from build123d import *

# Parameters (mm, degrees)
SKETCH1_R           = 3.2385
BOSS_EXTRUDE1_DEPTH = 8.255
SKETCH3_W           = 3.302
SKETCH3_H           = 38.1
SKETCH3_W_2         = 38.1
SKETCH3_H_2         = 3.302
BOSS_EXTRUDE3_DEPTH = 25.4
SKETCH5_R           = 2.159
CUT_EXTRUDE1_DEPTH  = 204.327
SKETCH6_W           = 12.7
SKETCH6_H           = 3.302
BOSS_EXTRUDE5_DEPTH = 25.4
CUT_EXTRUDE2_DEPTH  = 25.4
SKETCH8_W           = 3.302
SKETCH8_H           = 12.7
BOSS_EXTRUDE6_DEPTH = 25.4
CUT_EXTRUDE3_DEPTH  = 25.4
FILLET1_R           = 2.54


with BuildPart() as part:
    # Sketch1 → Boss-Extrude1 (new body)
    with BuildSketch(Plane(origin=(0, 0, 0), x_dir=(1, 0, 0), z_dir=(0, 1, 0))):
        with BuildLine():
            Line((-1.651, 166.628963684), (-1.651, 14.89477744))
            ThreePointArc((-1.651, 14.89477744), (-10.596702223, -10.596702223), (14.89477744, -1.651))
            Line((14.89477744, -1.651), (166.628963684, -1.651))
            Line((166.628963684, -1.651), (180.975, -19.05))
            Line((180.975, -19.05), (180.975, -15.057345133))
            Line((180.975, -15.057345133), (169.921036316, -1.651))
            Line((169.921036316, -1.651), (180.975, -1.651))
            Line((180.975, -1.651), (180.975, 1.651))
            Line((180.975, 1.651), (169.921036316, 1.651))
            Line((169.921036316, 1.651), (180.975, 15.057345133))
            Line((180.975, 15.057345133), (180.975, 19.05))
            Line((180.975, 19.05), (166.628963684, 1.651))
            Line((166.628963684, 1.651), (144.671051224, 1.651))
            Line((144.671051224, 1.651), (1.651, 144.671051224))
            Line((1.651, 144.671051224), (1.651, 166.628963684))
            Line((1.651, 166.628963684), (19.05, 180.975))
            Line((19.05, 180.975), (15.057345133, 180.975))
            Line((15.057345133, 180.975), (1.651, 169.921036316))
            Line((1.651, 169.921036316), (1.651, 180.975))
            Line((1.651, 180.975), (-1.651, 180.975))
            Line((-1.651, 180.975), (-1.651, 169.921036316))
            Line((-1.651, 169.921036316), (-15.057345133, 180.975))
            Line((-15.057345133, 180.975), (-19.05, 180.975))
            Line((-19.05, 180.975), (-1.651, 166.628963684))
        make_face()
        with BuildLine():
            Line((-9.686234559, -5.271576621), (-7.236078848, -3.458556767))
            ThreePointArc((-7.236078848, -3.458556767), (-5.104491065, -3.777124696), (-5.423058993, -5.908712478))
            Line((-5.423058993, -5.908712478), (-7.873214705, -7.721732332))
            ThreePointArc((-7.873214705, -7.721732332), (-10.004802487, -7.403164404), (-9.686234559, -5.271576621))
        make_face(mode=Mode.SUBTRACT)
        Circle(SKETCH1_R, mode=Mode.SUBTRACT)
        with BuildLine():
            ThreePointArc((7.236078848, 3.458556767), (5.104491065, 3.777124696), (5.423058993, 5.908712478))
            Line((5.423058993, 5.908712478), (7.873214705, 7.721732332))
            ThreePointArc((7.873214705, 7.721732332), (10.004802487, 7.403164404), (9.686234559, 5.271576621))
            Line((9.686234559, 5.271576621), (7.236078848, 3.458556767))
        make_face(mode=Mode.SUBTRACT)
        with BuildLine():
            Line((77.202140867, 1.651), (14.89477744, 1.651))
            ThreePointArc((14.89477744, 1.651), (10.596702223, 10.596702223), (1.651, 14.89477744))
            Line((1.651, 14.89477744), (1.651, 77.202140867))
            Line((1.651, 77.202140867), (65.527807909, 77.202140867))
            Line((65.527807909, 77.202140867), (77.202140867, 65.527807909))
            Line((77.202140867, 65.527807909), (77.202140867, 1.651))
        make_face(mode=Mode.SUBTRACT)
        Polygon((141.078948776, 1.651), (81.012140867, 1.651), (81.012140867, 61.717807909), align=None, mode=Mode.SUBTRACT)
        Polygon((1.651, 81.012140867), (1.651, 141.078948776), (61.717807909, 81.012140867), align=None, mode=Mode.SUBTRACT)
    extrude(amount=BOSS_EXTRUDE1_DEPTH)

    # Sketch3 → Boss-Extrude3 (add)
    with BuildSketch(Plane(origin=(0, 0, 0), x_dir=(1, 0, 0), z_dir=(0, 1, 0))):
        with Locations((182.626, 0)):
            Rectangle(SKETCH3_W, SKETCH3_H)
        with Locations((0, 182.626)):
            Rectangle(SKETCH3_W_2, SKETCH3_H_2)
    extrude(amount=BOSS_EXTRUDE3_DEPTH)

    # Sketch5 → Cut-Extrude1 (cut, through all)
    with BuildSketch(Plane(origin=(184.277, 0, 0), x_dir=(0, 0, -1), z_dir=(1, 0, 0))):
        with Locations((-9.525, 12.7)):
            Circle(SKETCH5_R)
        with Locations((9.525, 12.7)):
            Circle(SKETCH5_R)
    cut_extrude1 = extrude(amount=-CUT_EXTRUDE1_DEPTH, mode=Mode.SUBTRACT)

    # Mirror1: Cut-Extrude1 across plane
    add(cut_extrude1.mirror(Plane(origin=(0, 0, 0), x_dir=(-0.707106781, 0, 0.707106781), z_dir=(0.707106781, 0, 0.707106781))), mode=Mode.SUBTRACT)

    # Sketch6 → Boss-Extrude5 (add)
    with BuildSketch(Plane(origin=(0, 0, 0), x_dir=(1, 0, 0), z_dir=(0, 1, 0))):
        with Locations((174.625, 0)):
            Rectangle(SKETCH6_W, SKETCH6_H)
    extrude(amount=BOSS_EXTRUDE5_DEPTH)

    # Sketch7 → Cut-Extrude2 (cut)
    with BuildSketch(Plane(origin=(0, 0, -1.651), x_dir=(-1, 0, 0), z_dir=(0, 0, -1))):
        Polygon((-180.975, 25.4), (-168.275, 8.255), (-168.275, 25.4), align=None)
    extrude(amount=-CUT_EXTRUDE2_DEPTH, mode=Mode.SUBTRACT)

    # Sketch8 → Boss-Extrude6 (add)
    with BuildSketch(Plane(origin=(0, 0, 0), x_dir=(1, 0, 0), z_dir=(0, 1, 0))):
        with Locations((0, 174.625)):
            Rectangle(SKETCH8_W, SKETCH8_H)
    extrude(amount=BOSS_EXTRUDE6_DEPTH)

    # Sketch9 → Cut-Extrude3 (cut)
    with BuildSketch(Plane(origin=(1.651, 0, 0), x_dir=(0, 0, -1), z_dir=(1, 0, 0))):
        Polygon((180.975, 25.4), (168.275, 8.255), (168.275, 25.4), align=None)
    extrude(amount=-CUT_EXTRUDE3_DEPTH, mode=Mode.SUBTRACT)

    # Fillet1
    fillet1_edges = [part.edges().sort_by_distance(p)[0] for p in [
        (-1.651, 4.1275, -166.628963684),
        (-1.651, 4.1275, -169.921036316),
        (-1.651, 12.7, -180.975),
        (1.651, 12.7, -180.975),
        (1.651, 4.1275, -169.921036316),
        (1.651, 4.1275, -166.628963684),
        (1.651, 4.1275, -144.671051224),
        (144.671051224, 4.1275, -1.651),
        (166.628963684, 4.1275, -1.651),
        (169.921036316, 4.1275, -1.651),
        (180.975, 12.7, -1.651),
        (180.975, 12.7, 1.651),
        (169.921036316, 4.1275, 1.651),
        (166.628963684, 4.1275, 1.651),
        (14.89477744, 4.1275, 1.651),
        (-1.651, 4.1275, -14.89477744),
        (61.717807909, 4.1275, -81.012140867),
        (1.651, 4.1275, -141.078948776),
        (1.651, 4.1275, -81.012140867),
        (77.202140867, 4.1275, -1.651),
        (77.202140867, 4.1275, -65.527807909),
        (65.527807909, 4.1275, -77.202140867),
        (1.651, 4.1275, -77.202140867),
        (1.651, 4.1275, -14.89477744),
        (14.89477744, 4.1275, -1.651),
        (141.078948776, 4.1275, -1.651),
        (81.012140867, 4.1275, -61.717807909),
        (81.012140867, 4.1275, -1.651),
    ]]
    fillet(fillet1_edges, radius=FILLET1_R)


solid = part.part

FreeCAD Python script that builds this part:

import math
import FreeCAD as App
import Part
import Sketcher

V = App.Vector
Q = App.Units.Quantity


def edges_at(feature, points):
    """Names of the edges that pass closest to the given points."""
    edges = feature.Shape.Edges
    near = lambda p: min(range(len(edges)), key=lambda i: edges[i].distToShape(Part.Vertex(*p))[0])
    return sorted({f"Edge{near(p) + 1}" for p in points})

doc = App.newDocument("Part")
body = doc.addObject("PartDesign::Body", "Body")

# Sketch on XZ plane
sketch1 = body.newObject("Sketcher::SketchObject", "Sketch")
sketch1.AttachmentSupport = (doc.getObject("XZ_Plane"), [""])
sketch1.MapMode = "FlatFace"
sketch1.addGeometry(Part.LineSegment(V(-1.7, -166.6, 0), V(-1.7, -14.9, 0)), False)
sketch1.addGeometry(Part.ArcOfCircle(Part.Circle(V(0, 0, 0), V(0, 0, 1), 15), math.radians(6), math.radians(264)), False)
sketch1.addGeometry(Part.LineSegment(V(14.9, 1.7, 0), V(166.6, 1.7, 0)), False)
sketch1.addGeometry(Part.LineSegment(V(166.6, 1.7, 0), V(181, 19.1, 0)), False)
sketch1.addGeometry(Part.LineSegment(V(181, 19.1, 0), V(181, 15.1, 0)), False)
sketch1.addGeometry(Part.LineSegment(V(181, 15.1, 0), V(169.9, 1.7, 0)), False)
sketch1.addGeometry(Part.LineSegment(V(169.9, 1.7, 0), V(181, 1.7, 0)), False)
sketch1.addGeometry(Part.LineSegment(V(181, 1.7, 0), V(181, -1.7, 0)), False)
sketch1.addGeometry(Part.LineSegment(V(181, -1.7, 0), V(169.9, -1.7, 0)), False)
sketch1.addGeometry(Part.LineSegment(V(169.9, -1.7, 0), V(181, -15.1, 0)), False)
sketch1.addGeometry(Part.LineSegment(V(181, -15.1, 0), V(181, -19.1, 0)), False)
sketch1.addGeometry(Part.LineSegment(V(181, -19.1, 0), V(166.6, -1.7, 0)), False)
sketch1.addGeometry(Part.LineSegment(V(166.6, -1.7, 0), V(144.7, -1.7, 0)), False)
sketch1.addGeometry(Part.LineSegment(V(144.7, -1.7, 0), V(1.7, -144.7, 0)), False)
sketch1.addGeometry(Part.LineSegment(V(1.7, -144.7, 0), V(1.7, -166.6, 0)), False)
sketch1.addGeometry(Part.LineSegment(V(1.7, -166.6, 0), V(19.1, -181, 0)), False)
sketch1.addGeometry(Part.LineSegment(V(19.1, -181, 0), V(15.1, -181, 0)), False)
sketch1.addGeometry(Part.LineSegment(V(15.1, -181, 0), V(1.7, -169.9, 0)), False)
sketch1.addGeometry(Part.LineSegment(V(1.7, -169.9, 0), V(1.7, -181, 0)), False)
sketch1.addGeometry(Part.LineSegment(V(1.7, -181, 0), V(-1.7, -181, 0)), False)
sketch1.addGeometry(Part.LineSegment(V(-1.7, -181, 0), V(-1.7, -169.9, 0)), False)
sketch1.addGeometry(Part.LineSegment(V(-1.7, -169.9, 0), V(-15.1, -181, 0)), False)
sketch1.addGeometry(Part.LineSegment(V(-15.1, -181, 0), V(-19.1, -181, 0)), False)
sketch1.addGeometry(Part.LineSegment(V(-19.1, -181, 0), V(-1.7, -166.6, 0)), False)
sketch1.addGeometry(Part.ArcOfCircle(Part.Circle(V(-8.8, 6.5, 0), V(0, 0, 1), 1.5), math.radians(54), math.radians(233)), False)
sketch1.addGeometry(Part.LineSegment(V(-9.7, 5.3, 0), V(-7.2, 3.5, 0)), False)
sketch1.addGeometry(Part.ArcOfCircle(Part.Circle(V(-6.3, 4.7, 0), V(0, 0, 1), 1.5), math.radians(-126), math.radians(53)), False)
sketch1.addGeometry(Part.LineSegment(V(-5.4, 5.9, 0), V(-7.9, 7.7, 0)), False)
sketch1.addGeometry(Part.Circle(V(0, 0, 0), V(0, 0, 1), 3.2), False)
sketch1.addGeometry(Part.LineSegment(V(9.7, -5.3, 0), V(7.2, -3.5, 0)), False)
sketch1.addGeometry(Part.ArcOfCircle(Part.Circle(V(6.3, -4.7, 0), V(0, 0, 1), 1.5), math.radians(54), math.radians(233)), False)
sketch1.addGeometry(Part.LineSegment(V(5.4, -5.9, 0), V(7.9, -7.7, 0)), False)
sketch1.addGeometry(Part.ArcOfCircle(Part.Circle(V(8.8, -6.5, 0), V(0, 0, 1), 1.5), math.radians(-126), math.radians(53)), False)
sketch1.addGeometry(Part.LineSegment(V(77.2, -65.5, 0), V(77.2, -1.7, 0)), False)
sketch1.addGeometry(Part.LineSegment(V(77.2, -1.7, 0), V(14.9, -1.7, 0)), False)
sketch1.addGeometry(Part.ArcOfCircle(Part.Circle(V(0, 0, 0), V(0, 0, 1), 15), math.radians(-84), math.radians(-6)), False)
sketch1.addGeometry(Part.LineSegment(V(1.7, -14.9, 0), V(1.7, -77.2, 0)), False)
sketch1.addGeometry(Part.LineSegment(V(1.7, -77.2, 0), V(65.5, -77.2, 0)), False)
sketch1.addGeometry(Part.LineSegment(V(65.5, -77.2, 0), V(77.2, -65.5, 0)), False)
sketch1.addGeometry(Part.LineSegment(V(81, -61.7, 0), V(141.1, -1.7, 0)), False)
sketch1.addGeometry(Part.LineSegment(V(141.1, -1.7, 0), V(81, -1.7, 0)), False)
sketch1.addGeometry(Part.LineSegment(V(81, -1.7, 0), V(81, -61.7, 0)), False)
sketch1.addGeometry(Part.LineSegment(V(61.7, -81, 0), V(1.7, -81, 0)), False)
sketch1.addGeometry(Part.LineSegment(V(1.7, -81, 0), V(1.7, -141.1, 0)), False)
sketch1.addGeometry(Part.LineSegment(V(1.7, -141.1, 0), V(61.7, -81, 0)), False)
sketch1.addConstraint(Sketcher.Constraint("Coincident", 0, 2, 1, 2))
sketch1.addConstraint(Sketcher.Constraint("Coincident", 1, 1, 2, 1))
sketch1.addConstraint(Sketcher.Constraint("Coincident", 2, 2, 3, 1))
sketch1.addConstraint(Sketcher.Constraint("Coincident", 3, 2, 4, 1))
sketch1.addConstraint(Sketcher.Constraint("Coincident", 4, 2, 5, 1))
sketch1.addConstraint(Sketcher.Constraint("Coincident", 5, 2, 6, 1))
sketch1.addConstraint(Sketcher.Constraint("Coincident", 6, 2, 7, 1))
sketch1.addConstraint(Sketcher.Constraint("Coincident", 7, 2, 8, 1))
sketch1.addConstraint(Sketcher.Constraint("Coincident", 8, 2, 9, 1))
sketch1.addConstraint(Sketcher.Constraint("Coincident", 9, 2, 10, 1))
sketch1.addConstraint(Sketcher.Constraint("Coincident", 10, 2, 11, 1))
sketch1.addConstraint(Sketcher.Constraint("Coincident", 11, 2, 12, 1))
sketch1.addConstraint(Sketcher.Constraint("Coincident", 12, 2, 13, 1))
sketch1.addConstraint(Sketcher.Constraint("Coincident", 13, 2, 14, 1))
sketch1.addConstraint(Sketcher.Constraint("Coincident", 14, 2, 15, 1))
sketch1.addConstraint(Sketcher.Constraint("Coincident", 15, 2, 16, 1))
sketch1.addConstraint(Sketcher.Constraint("Coincident", 16, 2, 17, 1))
sketch1.addConstraint(Sketcher.Constraint("Coincident", 17, 2, 18, 1))
sketch1.addConstraint(Sketcher.Constraint("Coincident", 18, 2, 19, 1))
sketch1.addConstraint(Sketcher.Constraint("Coincident", 19, 2, 20, 1))
sketch1.addConstraint(Sketcher.Constraint("Coincident", 20, 2, 21, 1))
sketch1.addConstraint(Sketcher.Constraint("Coincident", 21, 2, 22, 1))
sketch1.addConstraint(Sketcher.Constraint("Coincident", 22, 2, 23, 1))
sketch1.addConstraint(Sketcher.Constraint("Coincident", 23, 2, 0, 1))
sketch1.addConstraint(Sketcher.Constraint("Tangent", 24, 2, 25, 1))
sketch1.addConstraint(Sketcher.Constraint("Tangent", 25, 2, 26, 1))
sketch1.addConstraint(Sketcher.Constraint("Tangent", 26, 2, 27, 1))
sketch1.addConstraint(Sketcher.Constraint("Tangent", 27, 2, 24, 1))
sketch1.addConstraint(Sketcher.Constraint("Tangent", 29, 2, 30, 1))
sketch1.addConstraint(Sketcher.Constraint("Tangent", 30, 2, 31, 1))
sketch1.addConstraint(Sketcher.Constraint("Tangent", 31, 2, 32, 1))
sketch1.addConstraint(Sketcher.Constraint("Tangent", 32, 2, 29, 1))
sketch1.addConstraint(Sketcher.Constraint("Coincident", 33, 2, 34, 1))
sketch1.addConstraint(Sketcher.Constraint("Coincident", 34, 2, 35, 2))
sketch1.addConstraint(Sketcher.Constraint("Coincident", 35, 1, 36, 1))
sketch1.addConstraint(Sketcher.Constraint("Coincident", 36, 2, 37, 1))
sketch1.addConstraint(Sketcher.Constraint("Coincident", 37, 2, 38, 1))
sketch1.addConstraint(Sketcher.Constraint("Coincident", 38, 2, 33, 1))
sketch1.addConstraint(Sketcher.Constraint("Coincident", 39, 2, 40, 1))
sketch1.addConstraint(Sketcher.Constraint("Coincident", 40, 2, 41, 1))
sketch1.addConstraint(Sketcher.Constraint("Coincident", 41, 2, 39, 1))
sketch1.addConstraint(Sketcher.Constraint("Coincident", 42, 2, 43, 1))
sketch1.addConstraint(Sketcher.Constraint("Coincident", 43, 2, 44, 1))
sketch1.addConstraint(Sketcher.Constraint("Coincident", 44, 2, 42, 1))
sketch1.addConstraint(Sketcher.Constraint("Vertical", 0))
sketch1.addConstraint(Sketcher.Constraint("Horizontal", 2))
sketch1.addConstraint(Sketcher.Constraint("Vertical", 4))
sketch1.addConstraint(Sketcher.Constraint("Horizontal", 6))
sketch1.addConstraint(Sketcher.Constraint("Vertical", 7))
sketch1.addConstraint(Sketcher.Constraint("Horizontal", 8))
sketch1.addConstraint(Sketcher.Constraint("Vertical", 10))
sketch1.addConstraint(Sketcher.Constraint("Horizontal", 12))
sketch1.addConstraint(Sketcher.Constraint("Vertical", 14))
sketch1.addConstraint(Sketcher.Constraint("Horizontal", 16))
sketch1.addConstraint(Sketcher.Constraint("Vertical", 18))
sketch1.addConstraint(Sketcher.Constraint("Horizontal", 19))
sketch1.addConstraint(Sketcher.Constraint("Vertical", 20))
sketch1.addConstraint(Sketcher.Constraint("Horizontal", 22))
sketch1.addConstraint(Sketcher.Constraint("Vertical", 33))
sketch1.addConstraint(Sketcher.Constraint("Horizontal", 34))
sketch1.addConstraint(Sketcher.Constraint("Vertical", 36))
sketch1.addConstraint(Sketcher.Constraint("Horizontal", 37))
sketch1.addConstraint(Sketcher.Constraint("Horizontal", 40))
sketch1.addConstraint(Sketcher.Constraint("Vertical", 41))
sketch1.addConstraint(Sketcher.Constraint("Horizontal", 42))
sketch1.addConstraint(Sketcher.Constraint("Vertical", 43))
sketch1.addConstraint(Sketcher.Constraint("Coincident", 1, 3, -1, 1))
sketch1.addConstraint(Sketcher.Constraint("Coincident", 28, 3, -1, 1))
sketch1.addConstraint(Sketcher.Constraint("Coincident", 35, 3, -1, 1))
sketch1.addConstraint(Sketcher.Constraint("Equal", 24, 26))
sketch1.addConstraint(Sketcher.Constraint("Equal", 26, 30))
sketch1.addConstraint(Sketcher.Constraint("Equal", 30, 32))
sketch1.addConstraint(Sketcher.Constraint("Equal", 1, 35))
sketch1.addConstraint(Sketcher.Constraint("Symmetric", 26, 3, 30, 3, -1, 1))
sketch1.addConstraint(Sketcher.Constraint("Symmetric", 24, 3, 32, 3, -1, 1))
sketch1.addConstraint(Sketcher.Constraint("Symmetric", 17, 2, 20, 2, -2))
sketch1.addConstraint(Sketcher.Constraint("Symmetric", 16, 2, 21, 2, -2))
sketch1.addConstraint(Sketcher.Constraint("Symmetric", 14, 2, 23, 2, -2))
sketch1.addConstraint(Sketcher.Constraint("Symmetric", 5, 2, 8, 2, -1))
sketch1.addConstraint(Sketcher.Constraint("Symmetric", 4, 2, 9, 2, -1))
sketch1.addConstraint(Sketcher.Constraint("Symmetric", 2, 2, 11, 2, -1))
sketch1.addConstraint(Sketcher.Constraint("Parallel", 3, 5))
sketch1.addConstraint(Sketcher.Constraint("Parallel", 9, 11))
sketch1.addConstraint(Sketcher.Constraint("Perpendicular", 5, 15))
sketch1.addConstraint(Sketcher.Constraint("Parallel", 15, 17))
sketch1.addConstraint(Sketcher.Constraint("Parallel", 21, 23))
sketch1.addConstraint(Sketcher.Constraint("Parallel", 13, 38))
sketch1.addConstraint(Sketcher.Constraint("Parallel", 38, 39))
sketch1.addConstraint(Sketcher.Constraint("Parallel", 39, 44))
sketch1.addConstraint(Sketcher.Constraint("Horizontal", 2, 2, 5, 2))
sketch1.addConstraint(Sketcher.Constraint("Horizontal", 16, 2, 18, 2))
sketch1.addConstraint(Sketcher.Constraint("Horizontal", 12, 2, 33, 2))
sketch1.addConstraint(Sketcher.Constraint("Horizontal", 0, 2, 35, 1))
sketch1.addConstraint(Sketcher.Constraint("Horizontal", 34, 2, 39, 2))
sketch1.addConstraint(Sketcher.Constraint("Vertical", 4, 2, 6, 2))
sketch1.addConstraint(Sketcher.Constraint("Vertical", 14, 2, 17, 2))
sketch1.addConstraint(Sketcher.Constraint("Vertical", 36, 2, 42, 2))
sketch1.addConstraint(Sketcher.Constraint("Equal", 40, 42))
sketch1.addConstraint(Sketcher.Constraint("Equal", 2, 0))
sketch1.addConstraint(Sketcher.Constraint("Equal", 22, 4))
sketch1.addConstraint(Sketcher.Constraint("Equal", 19, 7))
sketch1.addConstraint(Sketcher.Constraint("Equal", 12, 14))
sketch1.addConstraint(Sketcher.Constraint("Equal", 8, 18))
sketch1.addConstraint(Sketcher.Constraint("Equal", 37, 33))
sketch1.addConstraint(Sketcher.Constraint("Radius", 1, Q("0.59 in")))
sketch1.addConstraint(Sketcher.Constraint("Radius", 24, Q("0.06 in")))
sketch1.addConstraint(Sketcher.Constraint("Diameter", 28, Q("0.255 in")))
sketch1.addConstraint(Sketcher.Constraint("DistanceX", 19, 2, 19, 1, Q("0.13 in")))
sketch1.addConstraint(Sketcher.Constraint("Angle", 25, Q("-36.5 deg")))
sketch1.addConstraint(Sketcher.Constraint("Distance", 25, Q("0.12 in")))
sketch1.addConstraint(Sketcher.Constraint("Distance", 38, Q("0.65 in")))
sketch1.addConstraint(Sketcher.Constraint("DistanceY", -1, 1, 3, 2, Q("0.75 in")))
sketch1.addConstraint(Sketcher.Constraint("DistanceX", 33, 2, 40, 2, Q("0.15 in")))
sketch1.addConstraint(Sketcher.Constraint("DistanceY", 38, 2, 41, 2, Q("0.15 in")))
sketch1.addConstraint(Sketcher.Constraint("DistanceY", 42, 2, 36, 2, Q("0.15 in")))
sketch1.addConstraint(Sketcher.Constraint("DistanceX", -1, 1, 3, 2, Q("7.125 in")))
sketch1.addConstraint(Sketcher.Constraint("DistanceY", 32, 3, 4, 2, 21.554))
sketch1.addConstraint(Sketcher.Constraint("DistanceX", 29, 2, 34, 2, 7.658699))
sketch1.addConstraint(Sketcher.Constraint("Distance", 5, 17.375851))
sketch1.addConstraint(Sketcher.Constraint("DistanceX", 2, 1, 2, 2, 151.734186))
sketch1.addConstraint(Sketcher.Constraint("DistanceX", 12, 2, 12, 1, 21.957912))
sketch1.addConstraint(Sketcher.Constraint("DistanceX", 34, 2, 34, 1, 62.307363))
pad1 = body.newObject("PartDesign::Pad", "Pad")
pad1.Profile = sketch1
pad1.Length = Q("0.325 in")
pad1.Reversed = True

# Sketch on XZ plane
sketch2 = body.newObject("Sketcher::SketchObject", "Sketch001")
sketch2.AttachmentSupport = (doc.getObject("XZ_Plane"), [""])
sketch2.MapMode = "FlatFace"
sketch2.addGeometry(Part.LineSegment(V(181, -19.1, 0), V(181, 19.1, 0)), False)
sketch2.addGeometry(Part.LineSegment(V(181, 19.1, 0), V(184.3, 19.1, 0)), False)
sketch2.addGeometry(Part.LineSegment(V(184.3, 19.1, 0), V(184.3, -19.1, 0)), False)
sketch2.addGeometry(Part.LineSegment(V(184.3, -19.1, 0), V(181, -19.1, 0)), False)
sketch2.addGeometry(Part.LineSegment(V(-19.1, -184.3, 0), V(-19.1, -181, 0)), False)
sketch2.addGeometry(Part.LineSegment(V(-19.1, -181, 0), V(19.1, -181, 0)), False)
sketch2.addGeometry(Part.LineSegment(V(19.1, -181, 0), V(19.1, -184.3, 0)), False)
sketch2.addGeometry(Part.LineSegment(V(19.1, -184.3, 0), V(-19.1, -184.3, 0)), False)
sketch2.addConstraint(Sketcher.Constraint("Coincident", 0, 2, 1, 1))
sketch2.addConstraint(Sketcher.Constraint("Coincident", 1, 2, 2, 1))
sketch2.addConstraint(Sketcher.Constraint("Coincident", 2, 2, 3, 1))
sketch2.addConstraint(Sketcher.Constraint("Coincident", 3, 2, 0, 1))
sketch2.addConstraint(Sketcher.Constraint("Coincident", 4, 2, 5, 1))
sketch2.addConstraint(Sketcher.Constraint("Coincident", 5, 2, 6, 1))
sketch2.addConstraint(Sketcher.Constraint("Coincident", 6, 2, 7, 1))
sketch2.addConstraint(Sketcher.Constraint("Coincident", 7, 2, 4, 1))
sketch2.addConstraint(Sketcher.Constraint("Vertical", 0))
sketch2.addConstraint(Sketcher.Constraint("Horizontal", 1))
sketch2.addConstraint(Sketcher.Constraint("Vertical", 2))
sketch2.addConstraint(Sketcher.Constraint("Horizontal", 3))
sketch2.addConstraint(Sketcher.Constraint("Vertical", 4))
sketch2.addConstraint(Sketcher.Constraint("Horizontal", 5))
sketch2.addConstraint(Sketcher.Constraint("Vertical", 6))
sketch2.addConstraint(Sketcher.Constraint("Horizontal", 7))
sketch2.addConstraint(Sketcher.Constraint("Equal", 7, 0))
sketch2.addConstraint(Sketcher.Constraint("Equal", 3, 4))
sketch2.addConstraint(Sketcher.Constraint("DistanceX", 5, 1, 5, 2, Q("1.5 in")))
sketch2.addConstraint(Sketcher.Constraint("DistanceX", 1, 1, 1, 2, Q("0.13 in")))
sketch2.addConstraint(Sketcher.Constraint("DistanceY", -1, 1, 0, 2, Q("0.75 in")))
sketch2.addConstraint(Sketcher.Constraint("DistanceX", 4, 2, -1, 1, Q("0.75 in")))
sketch2.addConstraint(Sketcher.Constraint("DistanceX", -1, 1, 0, 2, Q("7.125 in")))
sketch2.addConstraint(Sketcher.Constraint("DistanceY", 4, 2, -1, 1, Q("7.125 in")))
pad2 = body.newObject("PartDesign::Pad", "Pad001")
pad2.Profile = sketch2
pad2.Length = Q("1 in")
pad2.Reversed = True

# Sketch on YZ plane
sketch3 = body.newObject("Sketcher::SketchObject", "Sketch002")
sketch3.AttachmentSupport = (doc.getObject("YZ_Plane"), [""])
sketch3.MapMode = "FlatFace"
sketch3.AttachmentOffset = App.Placement(V(0, 0, 7.255 * 25.4), App.Rotation())
sketch3.addGeometry(Part.Circle(V(12.7, 9.5, 0), V(0, 0, 1), 2.2), False)
sketch3.addGeometry(Part.Circle(V(12.7, -9.5, 0), V(0, 0, 1), 2.2), False)
sketch3.addConstraint(Sketcher.Constraint("Equal", 0, 1))
sketch3.addConstraint(Sketcher.Constraint("Symmetric", 0, 3, 1, 3, -1))
sketch3.addConstraint(Sketcher.Constraint("Diameter", 0, Q("0.17 in")))
sketch3.addConstraint(Sketcher.Constraint("DistanceX", -1, 1, 0, 3, Q("0.5 in")))
sketch3.addConstraint(Sketcher.Constraint("DistanceY", 1, 3, 0, 3, Q("0.75 in")))
pocket1 = body.newObject("PartDesign::Pocket", "Pocket")
pocket1.Profile = sketch3
pocket1.Type = "ThroughAll"
doc.recompute()

datumplane = body.newObject("PartDesign::Plane", "DatumPlane")
datumplane.Placement = App.Placement(V(0, 0, 0), App.Rotation(V(-0.707106781, 0, 0.707106781), V(0, -1, 0), V(0.707106781, 0, 0.707106781), "ZXY"))
mirrored = body.newObject("PartDesign::Mirrored", "Mirrored")
mirrored.Originals = [pocket1]
mirrored.MirrorPlane = (datumplane, [""])
body.Tip = mirrored

# Sketch on XZ plane
sketch4 = body.newObject("Sketcher::SketchObject", "Sketch003")
sketch4.AttachmentSupport = (doc.getObject("XZ_Plane"), [""])
sketch4.MapMode = "FlatFace"
sketch4.addGeometry(Part.LineSegment(V(168.3, -1.7, 0), V(168.3, 1.7, 0)), False)
sketch4.addGeometry(Part.LineSegment(V(168.3, 1.7, 0), V(181, 1.7, 0)), False)
sketch4.addGeometry(Part.LineSegment(V(181, 1.7, 0), V(181, -1.7, 0)), False)
sketch4.addGeometry(Part.LineSegment(V(181, -1.7, 0), V(168.3, -1.7, 0)), False)
sketch4.addConstraint(Sketcher.Constraint("Coincident", 0, 2, 1, 1))
sketch4.addConstraint(Sketcher.Constraint("Coincident", 1, 2, 2, 1))
sketch4.addConstraint(Sketcher.Constraint("Coincident", 2, 2, 3, 1))
sketch4.addConstraint(Sketcher.Constraint("Coincident", 3, 2, 0, 1))
sketch4.addConstraint(Sketcher.Constraint("Vertical", 0))
sketch4.addConstraint(Sketcher.Constraint("Horizontal", 1))
sketch4.addConstraint(Sketcher.Constraint("Vertical", 2))
sketch4.addConstraint(Sketcher.Constraint("Horizontal", 3))
sketch4.addConstraint(Sketcher.Constraint("DistanceX", 1, 1, 1, 2, Q("0.5 in")))
sketch4.addConstraint(Sketcher.Constraint("DistanceY", 0, 1, 0, 2, Q("0.13 in")))
sketch4.addConstraint(Sketcher.Constraint("DistanceX", -1, 1, 0, 2, Q("6.625 in")))
sketch4.addConstraint(Sketcher.Constraint("DistanceY", -1, 1, 0, 2, Q("0.065 in")))
pad3 = body.newObject("PartDesign::Pad", "Pad002")
pad3.Profile = sketch4
pad3.Length = Q("1 in")
pad3.Reversed = True

# Sketch on XY plane
sketch5 = body.newObject("Sketcher::SketchObject", "Sketch004")
sketch5.AttachmentSupport = (doc.getObject("XY_Plane"), [""])
sketch5.MapMode = "FlatFace"
sketch5.AttachmentOffset = App.Placement(V(0, 0, -0.065 * 25.4), App.Rotation())
sketch5.addGeometry(Part.LineSegment(V(181, 25, 0), V(168, 8, 0)), False)
sketch5.addGeometry(Part.LineSegment(V(168, 8, 0), V(168, 25, 0)), False)
sketch5.addGeometry(Part.LineSegment(V(168, 25, 0), V(181, 25, 0)), False)
sketch5.addConstraint(Sketcher.Constraint("Coincident", 0, 2, 1, 1))
sketch5.addConstraint(Sketcher.Constraint("Coincident", 1, 2, 2, 1))
sketch5.addConstraint(Sketcher.Constraint("Coincident", 2, 2, 0, 1))
sketch5.addConstraint(Sketcher.Constraint("Vertical", 1))
sketch5.addConstraint(Sketcher.Constraint("Horizontal", 2))
sketch5.addConstraint(Sketcher.Constraint("DistanceX", 2, 1, 2, 2, Q("0.5 in")))
sketch5.addConstraint(Sketcher.Constraint("DistanceY", -1, 1, 1, 2, Q("1 in")))
sketch5.addConstraint(Sketcher.Constraint("DistanceY", 1, 1, 1, 2, Q("0.675 in")))
sketch5.addConstraint(Sketcher.Constraint("DistanceX", -1, 1, 0, 2, Q("6.625 in")))
pocket2 = body.newObject("PartDesign::Pocket", "Pocket001")
pocket2.Profile = sketch5
pocket2.Length = Q("1 in")
pocket2.Reversed = True

# Sketch on XZ plane
sketch6 = body.newObject("Sketcher::SketchObject", "Sketch005")
sketch6.AttachmentSupport = (doc.getObject("XZ_Plane"), [""])
sketch6.MapMode = "FlatFace"
sketch6.addGeometry(Part.LineSegment(V(-1.7, -181, 0), V(-1.7, -168.3, 0)), False)
sketch6.addGeometry(Part.LineSegment(V(-1.7, -168.3, 0), V(1.7, -168.3, 0)), False)
sketch6.addGeometry(Part.LineSegment(V(1.7, -168.3, 0), V(1.7, -181, 0)), False)
sketch6.addGeometry(Part.LineSegment(V(1.7, -181, 0), V(-1.7, -181, 0)), False)
sketch6.addConstraint(Sketcher.Constraint("Coincident", 0, 2, 1, 1))
sketch6.addConstraint(Sketcher.Constraint("Coincident", 1, 2, 2, 1))
sketch6.addConstraint(Sketcher.Constraint("Coincident", 2, 2, 3, 1))
sketch6.addConstraint(Sketcher.Constraint("Coincident", 3, 2, 0, 1))
sketch6.addConstraint(Sketcher.Constraint("Vertical", 0))
sketch6.addConstraint(Sketcher.Constraint("Horizontal", 1))
sketch6.addConstraint(Sketcher.Constraint("Vertical", 2))
sketch6.addConstraint(Sketcher.Constraint("Horizontal", 3))
sketch6.addConstraint(Sketcher.Constraint("DistanceY", 0, 1, 0, 2, Q("0.5 in")))
sketch6.addConstraint(Sketcher.Constraint("DistanceX", 1, 1, 1, 2, Q("0.13 in")))
sketch6.addConstraint(Sketcher.Constraint("DistanceX", 0, 2, -1, 1, Q("0.065 in")))
sketch6.addConstraint(Sketcher.Constraint("DistanceY", 0, 2, -1, 1, Q("6.625 in")))
pad4 = body.newObject("PartDesign::Pad", "Pad003")
pad4.Profile = sketch6
pad4.Length = Q("1 in")
pad4.Reversed = True

# Sketch on YZ plane
sketch7 = body.newObject("Sketcher::SketchObject", "Sketch006")
sketch7.AttachmentSupport = (doc.getObject("YZ_Plane"), [""])
sketch7.MapMode = "FlatFace"
sketch7.AttachmentOffset = App.Placement(V(0, 0, 0.065 * 25.4), App.Rotation())
sketch7.addGeometry(Part.LineSegment(V(8, -168, 0), V(25, -181, 0)), False)
sketch7.addGeometry(Part.LineSegment(V(25, -181, 0), V(25, -168, 0)), False)
sketch7.addGeometry(Part.LineSegment(V(25, -168, 0), V(8, -168, 0)), False)
sketch7.addConstraint(Sketcher.Constraint("Coincident", 0, 2, 1, 1))
sketch7.addConstraint(Sketcher.Constraint("Coincident", 1, 2, 2, 1))
sketch7.addConstraint(Sketcher.Constraint("Coincident", 2, 2, 0, 1))
sketch7.addConstraint(Sketcher.Constraint("Vertical", 1))
sketch7.addConstraint(Sketcher.Constraint("Horizontal", 2))
sketch7.addConstraint(Sketcher.Constraint("DistanceY", 1, 1, 1, 2, Q("0.5 in")))
sketch7.addConstraint(Sketcher.Constraint("DistanceX", -1, 1, 0, 2, Q("1 in")))
sketch7.addConstraint(Sketcher.Constraint("DistanceX", 2, 2, 2, 1, Q("0.675 in")))
sketch7.addConstraint(Sketcher.Constraint("DistanceY", 0, 2, -1, 1, Q("7.125 in")))
pocket3 = body.newObject("PartDesign::Pocket", "Pocket002")
pocket3.Profile = sketch7
pocket3.Length = Q("1 in")
doc.recompute()

fillet = body.newObject("PartDesign::Fillet", "Fillet")
fillet.Base = (pocket3, edges_at(pocket3, [
    (-1.651, 4.128, -166.629),
    (-1.651, 4.128, -169.921),
    (-1.651, 12.7, -180.975),
    (1.651, 12.7, -180.975),
    (1.651, 4.128, -169.921),
    (1.651, 4.128, -166.629),
    (1.651, 4.128, -144.671),
    (144.671, 4.128, -1.651),
    (166.629, 4.128, -1.651),
    (169.921, 4.128, -1.651),
    (180.975, 12.7, -1.651),
    (180.975, 12.7, 1.651),
    (169.921, 4.128, 1.651),
    (166.629, 4.128, 1.651),
    (14.895, 4.128, 1.651),
    (-1.651, 4.128, -14.895),
    (61.718, 4.128, -81.012),
    (1.651, 4.128, -141.079),
    (1.651, 4.128, -81.012),
    (77.202, 4.128, -1.651),
    (77.202, 4.128, -65.528),
    (65.528, 4.128, -77.202),
    (1.651, 4.128, -77.202),
    (1.651, 4.128, -14.895),
    (14.895, 4.128, -1.651),
    (141.079, 4.128, -1.651),
    (81.012, 4.128, -61.718),
    (81.012, 4.128, -1.651),
]))
fillet.Radius = Q("0.1 in")

doc.recompute()
